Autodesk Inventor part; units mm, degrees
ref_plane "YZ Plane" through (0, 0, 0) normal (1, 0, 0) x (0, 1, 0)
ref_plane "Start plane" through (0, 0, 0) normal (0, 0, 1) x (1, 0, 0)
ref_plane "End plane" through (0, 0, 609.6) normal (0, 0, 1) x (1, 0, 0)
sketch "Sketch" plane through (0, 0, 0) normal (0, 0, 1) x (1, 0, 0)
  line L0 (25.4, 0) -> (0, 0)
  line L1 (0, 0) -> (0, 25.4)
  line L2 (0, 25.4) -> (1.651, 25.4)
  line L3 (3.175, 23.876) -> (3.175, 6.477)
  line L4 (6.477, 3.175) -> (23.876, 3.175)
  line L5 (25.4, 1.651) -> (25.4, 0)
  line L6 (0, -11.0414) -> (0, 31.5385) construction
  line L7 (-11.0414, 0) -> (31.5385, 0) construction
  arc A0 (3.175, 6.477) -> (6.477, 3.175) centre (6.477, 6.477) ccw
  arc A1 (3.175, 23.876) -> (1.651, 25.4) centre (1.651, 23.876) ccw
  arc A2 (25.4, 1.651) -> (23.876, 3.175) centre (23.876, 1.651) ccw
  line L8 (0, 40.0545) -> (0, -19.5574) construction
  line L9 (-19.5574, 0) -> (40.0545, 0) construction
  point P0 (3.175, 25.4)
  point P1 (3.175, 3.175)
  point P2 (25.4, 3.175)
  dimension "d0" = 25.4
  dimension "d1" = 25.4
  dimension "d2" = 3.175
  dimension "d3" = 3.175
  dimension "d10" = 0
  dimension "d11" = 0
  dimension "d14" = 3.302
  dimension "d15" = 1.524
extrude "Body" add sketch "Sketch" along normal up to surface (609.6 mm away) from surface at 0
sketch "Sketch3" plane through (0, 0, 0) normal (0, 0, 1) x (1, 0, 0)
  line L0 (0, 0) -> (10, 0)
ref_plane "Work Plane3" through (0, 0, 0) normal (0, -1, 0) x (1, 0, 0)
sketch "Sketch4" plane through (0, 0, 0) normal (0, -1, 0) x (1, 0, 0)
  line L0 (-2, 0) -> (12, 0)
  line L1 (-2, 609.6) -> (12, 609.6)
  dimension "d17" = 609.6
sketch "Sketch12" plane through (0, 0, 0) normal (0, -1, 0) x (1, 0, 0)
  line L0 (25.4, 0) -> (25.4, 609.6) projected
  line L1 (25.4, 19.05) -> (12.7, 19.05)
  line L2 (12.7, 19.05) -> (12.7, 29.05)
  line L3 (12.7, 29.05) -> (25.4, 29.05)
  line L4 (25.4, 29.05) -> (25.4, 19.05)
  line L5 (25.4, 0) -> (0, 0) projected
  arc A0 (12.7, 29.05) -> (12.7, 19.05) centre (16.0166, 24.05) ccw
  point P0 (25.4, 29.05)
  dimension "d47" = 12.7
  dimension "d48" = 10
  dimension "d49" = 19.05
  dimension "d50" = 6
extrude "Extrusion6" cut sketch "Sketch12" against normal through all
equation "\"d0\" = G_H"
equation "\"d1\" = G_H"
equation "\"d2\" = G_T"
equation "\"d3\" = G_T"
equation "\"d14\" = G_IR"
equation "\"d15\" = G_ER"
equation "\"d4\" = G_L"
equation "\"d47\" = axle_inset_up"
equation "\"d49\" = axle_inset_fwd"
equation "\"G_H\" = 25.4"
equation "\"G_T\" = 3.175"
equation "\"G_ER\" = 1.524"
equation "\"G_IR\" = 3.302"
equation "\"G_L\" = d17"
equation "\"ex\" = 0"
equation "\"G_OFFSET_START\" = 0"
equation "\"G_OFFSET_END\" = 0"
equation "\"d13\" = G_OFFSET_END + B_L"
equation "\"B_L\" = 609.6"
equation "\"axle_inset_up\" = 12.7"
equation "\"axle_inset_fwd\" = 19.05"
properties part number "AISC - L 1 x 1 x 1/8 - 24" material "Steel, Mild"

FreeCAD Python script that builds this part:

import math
import FreeCAD as App
import Part
import Sketcher
from FreeCAD import Vector
Q = App.Units.Quantity

doc = App.newDocument("Part")
params = doc.addObject("Spreadsheet::Sheet", "Params")
for row, (alias, value) in enumerate([
    ("sketch1_width", "1 in"),
    ("sketch1_radius", "0.06 in"),
    ("sketch1_radius2", "0.13 in"),
    ("pad1_length", "24 in"),
    ("sketch2_width", "0.5 in"),
], start=1):
    params.set(f"A{row}", alias)
    params.set(f"B{row}", "=" + value)
    params.setAlias(f"B{row}", alias)

body = doc.addObject("PartDesign::Body", "Body")

sketch1 = body.newObject("Sketcher::SketchObject", "Sketch")
sketch1.AttachmentSupport = (doc.getObject("XY_Plane"), [""])
sketch1.MapMode = "FlatFace"
sketch1.addGeometry(Part.LineSegment(Vector(0, 0, 0), Vector(25.4, 0, 0)), False)
sketch1.addGeometry(Part.LineSegment(Vector(25.4, 0, 0), Vector(25.4, 1.651, 0)), False)
sketch1.addGeometry(Part.ArcOfCircle(Part.Circle(Vector(23.876, 1.651, 0), Vector(0, 0, 1), 1.524), math.radians(0), math.radians(90)), False)
sketch1.addGeometry(Part.LineSegment(Vector(23.876, 3.175, 0), Vector(6.477, 3.175, 0)), False)
sketch1.addGeometry(Part.ArcOfCircle(Part.Circle(Vector(6.477, 6.477, 0), Vector(0, 0, 1), 3.302), math.radians(180), math.radians(270)), False)
sketch1.addGeometry(Part.LineSegment(Vector(3.175, 6.477, 0), Vector(3.175, 23.876, 0)), False)
sketch1.addGeometry(Part.ArcOfCircle(Part.Circle(Vector(1.651, 23.876, 0), Vector(0, 0, 1), 1.524), math.radians(0), math.radians(90)), False)
sketch1.addGeometry(Part.LineSegment(Vector(1.651, 25.4, 0), Vector(0, 25.4, 0)), False)
sketch1.addGeometry(Part.LineSegment(Vector(0, 25.4, 0), Vector(0, 0, 0)), False)
sketch1.addConstraint(Sketcher.Constraint("Coincident", 0, 2, 1, 1))
sketch1.addConstraint(Sketcher.Constraint("Tangent", 1, 2, 2, 1))
sketch1.addConstraint(Sketcher.Constraint("Tangent", 2, 2, 3, 1))
sketch1.addConstraint(Sketcher.Constraint("Tangent", 3, 2, 4, 2))
sketch1.addConstraint(Sketcher.Constraint("Tangent", 4, 1, 5, 1))
sketch1.addConstraint(Sketcher.Constraint("Tangent", 5, 2, 6, 1))
sketch1.addConstraint(Sketcher.Constraint("Tangent", 6, 2, 7, 1))
sketch1.addConstraint(Sketcher.Constraint("Coincident", 7, 2, 8, 1))
sketch1.addConstraint(Sketcher.Constraint("Coincident", 8, 2, 0, 1))
sketch1.addConstraint(Sketcher.Constraint("Horizontal", 0))
sketch1.addConstraint(Sketcher.Constraint("Vertical", 1))
sketch1.addConstraint(Sketcher.Constraint("Horizontal", 3))
sketch1.addConstraint(Sketcher.Constraint("Vertical", 5))
sketch1.addConstraint(Sketcher.Constraint("Horizontal", 7))
sketch1.addConstraint(Sketcher.Constraint("Vertical", 8))
sketch1.addConstraint(Sketcher.Constraint("Coincident", 8, 2, -1, 1))
sketch1.addConstraint(Sketcher.Constraint("Equal", 2, 6))
sketch1.addConstraint(Sketcher.Constraint("Equal", 7, 1))
sketch1.addConstraint(Sketcher.Constraint("Equal", 3, 5))
sketch1.addConstraint(Sketcher.Constraint("DistanceX", 0, 1, 0, 2, Q("1 in")))
sketch1.addConstraint(Sketcher.Constraint("Radius", 2, Q("0.06 in")))
sketch1.addConstraint(Sketcher.Constraint("Radius", 4, Q("0.13 in")))
sketch1.addConstraint(Sketcher.Constraint("DistanceY", -1, 1, 2, 2, Q("0.125 in")))
sketch1.setExpression("Constraints[19]", "Params.sketch1_width")
sketch1.setExpression("Constraints[20]", "Params.sketch1_radius")
sketch1.setExpression("Constraints[21]", "Params.sketch1_radius2")
pad1 = body.newObject("PartDesign::Pad", "Pad")
pad1.Profile = sketch1
pad1.setExpression("Length", "Params.pad1_length")

sketch2 = body.newObject("Sketcher::SketchObject", "Sketch001")
sketch2.AttachmentSupport = (doc.getObject("XZ_Plane"), [""])
sketch2.MapMode = "FlatFace"
sketch2.addGeometry(Part.LineSegment(Vector(12.7, 19.05, 0), Vector(25.4, 19.05, 0)), False)
sketch2.addGeometry(Part.LineSegment(Vector(25.4, 19.05, 0), Vector(25.4, 29.05, 0)), False)
sketch2.addGeometry(Part.LineSegment(Vector(25.4, 29.05, 0), Vector(12.7, 29.05, 0)), False)
sketch2.addGeometry(Part.ArcOfCircle(Part.Circle(Vector(16.0166, 24.05, 0), Vector(0, 0, 1), 5.999986), math.radians(123.557112), math.radians(236.442888)), False)
sketch2.addConstraint(Sketcher.Constraint("Coincident", 0, 2, 1, 1))
sketch2.addConstraint(Sketcher.Constraint("Coincident", 1, 2, 2, 1))
sketch2.addConstraint(Sketcher.Constraint("Coincident", 2, 2, 3, 1))
sketch2.addConstraint(Sketcher.Constraint("Coincident", 3, 2, 0, 1))
sketch2.addConstraint(Sketcher.Constraint("Horizontal", 0))
sketch2.addConstraint(Sketcher.Constraint("Vertical", 1))
sketch2.addConstraint(Sketcher.Constraint("Horizontal", 2))
sketch2.addConstraint(Sketcher.Constraint("Vertical", 2, 2, 3, 2))
sketch2.addConstraint(Sketcher.Constraint("DistanceX", 0, 1, 0, 2, Q("0.5 in")))
sketch2.addConstraint(Sketcher.Constraint("DistanceX", -1, 1, 2, 2, Q("0.5 in")))
sketch2.addConstraint(Sketcher.Constraint("DistanceY", -1, 1, 0, 2, Q("0.75 in")))
sketch2.addConstraint(Sketcher.Constraint("Radius", 3, 6.0))
sketch2.addConstraint(Sketcher.Constraint("DistanceY", 1, 1, 1, 2, Q("0.3937 in")))
sketch2.setExpression("Constraints[8]", "Params.sketch2_width")
pocket1 = body.newObject("PartDesign::Pocket", "Pocket")
pocket1.Profile = sketch2
pocket1.Type = "ThroughAll"

doc.recompute()
